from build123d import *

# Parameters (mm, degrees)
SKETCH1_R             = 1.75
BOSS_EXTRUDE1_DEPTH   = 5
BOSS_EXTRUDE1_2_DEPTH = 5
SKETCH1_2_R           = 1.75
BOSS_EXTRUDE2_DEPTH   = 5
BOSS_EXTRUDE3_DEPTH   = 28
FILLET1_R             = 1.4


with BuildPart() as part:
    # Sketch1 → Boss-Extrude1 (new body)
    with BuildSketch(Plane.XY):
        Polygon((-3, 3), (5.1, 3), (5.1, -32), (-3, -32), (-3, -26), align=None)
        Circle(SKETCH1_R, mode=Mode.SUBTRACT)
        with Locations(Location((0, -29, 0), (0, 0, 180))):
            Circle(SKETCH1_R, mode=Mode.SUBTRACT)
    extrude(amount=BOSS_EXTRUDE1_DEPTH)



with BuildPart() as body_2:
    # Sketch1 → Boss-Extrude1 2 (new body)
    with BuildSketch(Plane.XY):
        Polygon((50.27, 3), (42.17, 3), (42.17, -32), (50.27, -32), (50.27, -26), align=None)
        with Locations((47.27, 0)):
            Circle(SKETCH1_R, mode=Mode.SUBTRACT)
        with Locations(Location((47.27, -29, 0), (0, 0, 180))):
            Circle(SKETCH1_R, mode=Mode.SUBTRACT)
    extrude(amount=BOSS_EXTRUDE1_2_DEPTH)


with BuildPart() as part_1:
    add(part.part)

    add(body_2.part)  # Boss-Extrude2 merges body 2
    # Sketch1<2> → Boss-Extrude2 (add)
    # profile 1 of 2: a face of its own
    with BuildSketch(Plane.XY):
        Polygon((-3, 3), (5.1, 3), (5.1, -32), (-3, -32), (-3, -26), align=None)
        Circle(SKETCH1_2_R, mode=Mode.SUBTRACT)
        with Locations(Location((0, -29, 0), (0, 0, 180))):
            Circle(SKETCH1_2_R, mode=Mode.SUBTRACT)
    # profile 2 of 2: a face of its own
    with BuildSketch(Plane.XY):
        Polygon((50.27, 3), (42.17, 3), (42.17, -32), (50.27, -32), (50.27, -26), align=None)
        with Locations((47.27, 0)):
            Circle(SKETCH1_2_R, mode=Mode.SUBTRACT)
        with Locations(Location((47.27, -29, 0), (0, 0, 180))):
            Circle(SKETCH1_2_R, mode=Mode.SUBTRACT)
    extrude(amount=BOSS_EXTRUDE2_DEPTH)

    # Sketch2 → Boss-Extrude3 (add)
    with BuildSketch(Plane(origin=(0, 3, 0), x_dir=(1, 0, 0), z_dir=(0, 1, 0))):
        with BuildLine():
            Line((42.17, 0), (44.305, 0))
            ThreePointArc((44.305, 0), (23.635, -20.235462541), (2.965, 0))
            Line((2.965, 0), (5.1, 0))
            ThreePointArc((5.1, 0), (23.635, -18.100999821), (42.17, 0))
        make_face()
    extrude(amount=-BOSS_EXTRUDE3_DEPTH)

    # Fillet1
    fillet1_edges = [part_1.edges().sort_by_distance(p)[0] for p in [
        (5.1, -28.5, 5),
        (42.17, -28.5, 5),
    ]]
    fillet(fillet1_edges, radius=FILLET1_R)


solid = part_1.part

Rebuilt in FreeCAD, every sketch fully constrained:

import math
import FreeCAD as App
import Part
import Sketcher


def edges_at(feature, points):
    """Names of the edges that pass closest to the given points."""
    edges = feature.Shape.Edges
    near = lambda p: min(range(len(edges)), key=lambda i: edges[i].distToShape(Part.Vertex(*p))[0])
    return sorted({f"Edge{near(p) + 1}" for p in points})

doc = App.newDocument("Part")
params = doc.addObject("Spreadsheet::Sheet", "Params")
for row, (alias, value) in enumerate([
    ("sketch1_diameter", "3.5 mm"),
    ("sketch1_height", "35 mm"),
    ("sketch1_width", "8.1 mm"),
    ("pad1_length", "5 mm"),
    ("sketch2_diameter", "3.5 mm"),
    ("sketch2_height", "35 mm"),
    ("sketch2_width", "8.1 mm"),
    ("pad2_length", "5 mm"),
    ("sketch3_diameter", "3.5 mm"),
    ("sketch3_height", "35 mm"),
    ("sketch3_width", "8.1 mm"),
    ("pad3_length", "5 mm"),
    ("pad4_length", "28 mm"),
    ("fillet_radius", "1.4 mm"),
], start=1):
    params.set(f"A{row}", alias)
    params.set(f"B{row}", "=" + value)
    params.setAlias(f"B{row}", alias)

body = doc.addObject("PartDesign::Body", "Body")

sketch1 = doc.addObject("Sketcher::SketchObject", "Sketch")
body.addObject(sketch1)
sketch1.AttachmentSupport = (doc.XY_Plane, [""])
sketch1.MapMode = "FlatFace"
sketch1.addGeometry([
    Part.LineSegment(App.Vector(5.1, 3, 0), App.Vector(-3, 3, 0)),
    Part.LineSegment(App.Vector(-3, 3, 0), App.Vector(-3, -32, 0)),
    Part.LineSegment(App.Vector(-3, -32, 0), App.Vector(5.1, -32, 0)),
    Part.LineSegment(App.Vector(5.1, -32, 0), App.Vector(5.1, 3, 0)),
    Part.Circle(App.Vector(0, -29, 0), App.Vector(0, 0, 1), 1.8),
    Part.Circle(App.Vector(0, 0, 0), App.Vector(0, 0, 1), 1.8),
], False)
sketch1.addConstraint([
    Sketcher.Constraint("Coincident", 0, 2, 1, 1),
    Sketcher.Constraint("Coincident", 1, 2, 2, 1),
    Sketcher.Constraint("Coincident", 2, 2, 3, 1),
    Sketcher.Constraint("Coincident", 3, 2, 0, 1),
    Sketcher.Constraint("Horizontal", 0),
    Sketcher.Constraint("Vertical", 1),
    Sketcher.Constraint("Horizontal", 2),
    Sketcher.Constraint("Vertical", 3),
    Sketcher.Constraint("Coincident", 5, 3, -1, 1),
    Sketcher.Constraint("Equal", 4, 5),
    Sketcher.Constraint("PointOnObject", 4, 3, -2),
    Sketcher.Constraint("Diameter", 4, 3.5),
    Sketcher.Constraint("DistanceY", 1, 2, 1, 1, 35.0),
    Sketcher.Constraint("DistanceX", 0, 2, 0, 1, 8.1),
    Sketcher.Constraint("DistanceY", 4, 3, -1, 1, 29.0),
    Sketcher.Constraint("DistanceX", 0, 2, -1, 1, 3.0),
    Sketcher.Constraint("DistanceY", -1, 1, 0, 2, 3.0),
])
sketch1.setExpression("Constraints[11]", "Params.sketch1_diameter")
sketch1.setExpression("Constraints[12]", "Params.sketch1_height")
sketch1.setExpression("Constraints[13]", "Params.sketch1_width")
pad1 = doc.addObject("PartDesign::Pad", "Pad")
body.addObject(pad1)
pad1.Profile = sketch1
pad1.setExpression("Length", "Params.pad1_length")
body2 = doc.addObject("PartDesign::Body", "Body001")

sketch2 = doc.addObject("Sketcher::SketchObject", "Sketch001")
body2.addObject(sketch2)
sketch2.AttachmentSupport = (doc.getObject("XY_Plane001"), [""])
sketch2.MapMode = "FlatFace"
sketch2.addGeometry([
    Part.LineSegment(App.Vector(50.3, 3, 0), App.Vector(42.2, 3, 0)),
    Part.LineSegment(App.Vector(42.2, 3, 0), App.Vector(42.2, -32, 0)),
    Part.LineSegment(App.Vector(42.2, -32, 0), App.Vector(50.3, -32, 0)),
    Part.LineSegment(App.Vector(50.3, -32, 0), App.Vector(50.3, 3, 0)),
    Part.Circle(App.Vector(47.3, -29, 0), App.Vector(0, 0, 1), 1.8),
    Part.Circle(App.Vector(47.3, 0, 0), App.Vector(0, 0, 1), 1.8),
], False)
sketch2.addConstraint([
    Sketcher.Constraint("Coincident", 0, 2, 1, 1),
    Sketcher.Constraint("Coincident", 1, 2, 2, 1),
    Sketcher.Constraint("Coincident", 2, 2, 3, 1),
    Sketcher.Constraint("Coincident", 3, 2, 0, 1),
    Sketcher.Constraint("Horizontal", 0),
    Sketcher.Constraint("Vertical", 1),
    Sketcher.Constraint("Horizontal", 2),
    Sketcher.Constraint("Vertical", 3),
    Sketcher.Constraint("Equal", 4, 5),
    Sketcher.Constraint("PointOnObject", 5, 3, -1),
    Sketcher.Constraint("Vertical", 4, 3, 5, 3),
    Sketcher.Constraint("Diameter", 4, 3.5),
    Sketcher.Constraint("DistanceY", 1, 2, 1, 1, 35.0),
    Sketcher.Constraint("DistanceX", 0, 2, 0, 1, 8.1),
    Sketcher.Constraint("DistanceY", 4, 3, -1, 1, 29.0),
    Sketcher.Constraint("DistanceY", -1, 1, 0, 2, 3.0),
    Sketcher.Constraint("DistanceX", 4, 3, 2, 2, 3.0),
    Sketcher.Constraint("DistanceX", -1, 1, 4, 3, 47.27),
])
sketch2.setExpression("Constraints[11]", "Params.sketch2_diameter")
sketch2.setExpression("Constraints[12]", "Params.sketch2_height")
sketch2.setExpression("Constraints[13]", "Params.sketch2_width")
pad2 = doc.addObject("PartDesign::Pad", "Pad001")
body2.addObject(pad2)
pad2.Profile = sketch2
pad2.setExpression("Length", "Params.pad2_length")
body.AllowCompound = True
doc.recompute()

boolean = doc.addObject("PartDesign::Boolean", "Boolean")
body.addObject(boolean)
boolean.Type = "Fuse"
boolean.addObjects([body2])

sketch3 = doc.addObject("Sketcher::SketchObject", "Sketch002")
body.addObject(sketch3)
sketch3.AttachmentSupport = (doc.XY_Plane, [""])
sketch3.MapMode = "FlatFace"
sketch3.addGeometry([
    Part.LineSegment(App.Vector(5.1, 3, 0), App.Vector(-3, 3, 0)),
    Part.LineSegment(App.Vector(-3, 3, 0), App.Vector(-3, -32, 0)),
    Part.LineSegment(App.Vector(-3, -32, 0), App.Vector(5.1, -32, 0)),
    Part.LineSegment(App.Vector(5.1, -32, 0), App.Vector(5.1, 3, 0)),
    Part.Circle(App.Vector(0, -29, 0), App.Vector(0, 0, 1), 1.8),
    Part.Circle(App.Vector(0, 0, 0), App.Vector(0, 0, 1), 1.8),
    Part.LineSegment(App.Vector(50.3, 3, 0), App.Vector(42.2, 3, 0)),
    Part.LineSegment(App.Vector(42.2, 3, 0), App.Vector(42.2, -32, 0)),
    Part.LineSegment(App.Vector(42.2, -32, 0), App.Vector(50.3, -32, 0)),
    Part.LineSegment(App.Vector(50.3, -32, 0), App.Vector(50.3, 3, 0)),
    Part.Circle(App.Vector(47.3, -29, 0), App.Vector(0, 0, 1), 1.8),
    Part.Circle(App.Vector(47.3, 0, 0), App.Vector(0, 0, 1), 1.8),
], False)
sketch3.addConstraint([
    Sketcher.Constraint("Coincident", 0, 2, 1, 1),
    Sketcher.Constraint("Coincident", 1, 2, 2, 1),
    Sketcher.Constraint("Coincident", 2, 2, 3, 1),
    Sketcher.Constraint("Coincident", 3, 2, 0, 1),
    Sketcher.Constraint("Coincident", 6, 2, 7, 1),
    Sketcher.Constraint("Coincident", 7, 2, 8, 1),
    Sketcher.Constraint("Coincident", 8, 2, 9, 1),
    Sketcher.Constraint("Coincident", 9, 2, 6, 1),
    Sketcher.Constraint("Horizontal", 0),
    Sketcher.Constraint("Vertical", 1),
    Sketcher.Constraint("Horizontal", 2),
    Sketcher.Constraint("Vertical", 3),
    Sketcher.Constraint("Horizontal", 6),
    Sketcher.Constraint("Vertical", 7),
    Sketcher.Constraint("Horizontal", 8),
    Sketcher.Constraint("Vertical", 9),
    Sketcher.Constraint("Coincident", 5, 3, -1, 1),
    Sketcher.Constraint("Equal", 4, 5),
    Sketcher.Constraint("Equal", 5, 10),
    Sketcher.Constraint("Equal", 10, 11),
    Sketcher.Constraint("PointOnObject", 4, 3, -2),
    Sketcher.Constraint("PointOnObject", 11, 3, -1),
    Sketcher.Constraint("Horizontal", 4, 3, 10, 3),
    Sketcher.Constraint("Horizontal", 3, 2, 6, 2),
    Sketcher.Constraint("Horizontal", 2, 2, 7, 2),
    Sketcher.Constraint("Vertical", 10, 3, 11, 3),
    Sketcher.Constraint("Equal", 2, 6),
    Sketcher.Constraint("Diameter", 4, 3.5),
    Sketcher.Constraint("DistanceY", 1, 2, 1, 1, 35.0),
    Sketcher.Constraint("DistanceX", 0, 2, 0, 1, 8.1),
    Sketcher.Constraint("DistanceY", 4, 3, -1, 1, 29.0),
    Sketcher.Constraint("DistanceX", 0, 2, -1, 1, 3.0),
    Sketcher.Constraint("DistanceY", -1, 1, 0, 2, 3.0),
    Sketcher.Constraint("DistanceX", 10, 3, 8, 2, 3.0),
    Sketcher.Constraint("DistanceX", -1, 1, 10, 3, 47.27),
])
sketch3.setExpression("Constraints[27]", "Params.sketch3_diameter")
sketch3.setExpression("Constraints[28]", "Params.sketch3_height")
sketch3.setExpression("Constraints[29]", "Params.sketch3_width")
pad3 = doc.addObject("PartDesign::Pad", "Pad002")
body.addObject(pad3)
pad3.Profile = sketch3
pad3.setExpression("Length", "Params.pad3_length")

sketch4 = doc.addObject("Sketcher::SketchObject", "Sketch003")
body.addObject(sketch4)
sketch4.AttachmentSupport = (doc.XZ_Plane, [""])
sketch4.MapMode = "FlatFace"
sketch4.AttachmentOffset = App.Placement(App.Vector(0, 0, -3), App.Rotation())
sketch4.addGeometry([
    Part.LineSegment(App.Vector(44.3, 0, 0), App.Vector(42.2, 0, 0)),
    Part.ArcOfCircle(Part.Circle(App.Vector(23.6, -0.4, 0), App.Vector(0, 0, 1), 18.5), math.radians(1), math.radians(179)),
    Part.LineSegment(App.Vector(5.1, 0, 0), App.Vector(3, 0, 0)),
    Part.ArcOfCircle(Part.Circle(App.Vector(23.6, -0.4, 0), App.Vector(0, 0, 1), 20.7), math.radians(1), math.radians(179)),
], False)
sketch4.addConstraint([
    Sketcher.Constraint("Coincident", 0, 2, 1, 1),
    Sketcher.Constraint("Coincident", 1, 2, 2, 1),
    Sketcher.Constraint("Coincident", 2, 2, 3, 2),
    Sketcher.Constraint("Coincident", 3, 1, 0, 1),
    Sketcher.Constraint("Horizontal", 0),
    Sketcher.Constraint("Horizontal", 2),
    Sketcher.Constraint("Coincident", 3, 3, 1, 3),
    Sketcher.Constraint("PointOnObject", 0, 2, -1),
    Sketcher.Constraint("PointOnObject", 1, 2, -1),
    Sketcher.Constraint("DistanceX", -1, 1, 1, 2, 5.1),
    Sketcher.Constraint("DistanceX", 0, 2, 0, 1, 2.135),
    Sketcher.Constraint("DistanceX", -1, 1, 0, 2, 42.17),
    Sketcher.Constraint("Radius", 1, 18.540203),
])
pad4 = doc.addObject("PartDesign::Pad", "Pad003")
body.addObject(pad4)
pad4.Profile = sketch4
pad4.setExpression("Length", "Params.pad4_length")
doc.recompute()

fillet = doc.addObject("PartDesign::Fillet", "Fillet")
body.addObject(fillet)
fillet.Base = (pad4, edges_at(pad4, [(5.1, -28.5, 5), (42.17, -28.5, 5)]))
fillet.setExpression("Radius", "Params.fillet_radius")

doc.recompute()
